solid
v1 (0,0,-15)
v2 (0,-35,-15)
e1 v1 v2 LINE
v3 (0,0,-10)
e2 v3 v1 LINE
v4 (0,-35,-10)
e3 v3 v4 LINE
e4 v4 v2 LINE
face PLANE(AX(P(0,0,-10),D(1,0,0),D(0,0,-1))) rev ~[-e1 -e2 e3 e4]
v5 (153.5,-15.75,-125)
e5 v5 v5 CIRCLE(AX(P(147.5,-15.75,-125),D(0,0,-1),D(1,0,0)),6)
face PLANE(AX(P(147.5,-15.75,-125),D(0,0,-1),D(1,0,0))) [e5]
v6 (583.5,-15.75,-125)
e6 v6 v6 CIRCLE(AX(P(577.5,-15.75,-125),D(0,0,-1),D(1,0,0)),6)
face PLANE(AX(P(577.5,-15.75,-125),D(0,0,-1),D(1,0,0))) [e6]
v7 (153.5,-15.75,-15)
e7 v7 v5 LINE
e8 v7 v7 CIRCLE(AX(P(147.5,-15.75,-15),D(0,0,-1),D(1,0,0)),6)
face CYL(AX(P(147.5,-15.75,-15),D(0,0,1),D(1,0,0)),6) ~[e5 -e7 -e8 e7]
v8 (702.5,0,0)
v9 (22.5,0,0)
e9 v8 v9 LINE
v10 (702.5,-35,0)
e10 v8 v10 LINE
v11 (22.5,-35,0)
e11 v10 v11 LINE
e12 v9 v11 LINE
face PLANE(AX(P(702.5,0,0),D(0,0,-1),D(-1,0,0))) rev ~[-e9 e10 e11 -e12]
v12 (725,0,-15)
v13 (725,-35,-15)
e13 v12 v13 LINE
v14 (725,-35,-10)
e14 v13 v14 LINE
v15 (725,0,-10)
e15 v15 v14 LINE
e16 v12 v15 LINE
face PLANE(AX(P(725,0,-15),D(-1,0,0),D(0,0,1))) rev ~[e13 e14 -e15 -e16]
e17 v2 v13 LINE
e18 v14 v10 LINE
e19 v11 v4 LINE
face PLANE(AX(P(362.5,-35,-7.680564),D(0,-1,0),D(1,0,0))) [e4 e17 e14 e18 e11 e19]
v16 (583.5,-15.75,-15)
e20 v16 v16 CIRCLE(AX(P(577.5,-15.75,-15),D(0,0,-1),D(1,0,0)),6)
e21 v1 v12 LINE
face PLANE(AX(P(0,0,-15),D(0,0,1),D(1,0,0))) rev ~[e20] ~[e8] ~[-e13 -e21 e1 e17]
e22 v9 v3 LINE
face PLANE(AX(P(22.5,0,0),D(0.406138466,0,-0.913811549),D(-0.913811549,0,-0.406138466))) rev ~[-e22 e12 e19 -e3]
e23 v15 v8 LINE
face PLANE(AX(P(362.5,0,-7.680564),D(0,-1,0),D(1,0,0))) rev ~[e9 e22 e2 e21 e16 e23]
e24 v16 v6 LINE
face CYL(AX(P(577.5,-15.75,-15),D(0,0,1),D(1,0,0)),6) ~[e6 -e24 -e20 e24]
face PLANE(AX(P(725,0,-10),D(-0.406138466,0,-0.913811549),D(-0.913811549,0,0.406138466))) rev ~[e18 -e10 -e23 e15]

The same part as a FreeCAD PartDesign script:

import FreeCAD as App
import Part
import Sketcher
from FreeCAD import Vector
Q = App.Units.Quantity


def add_polygon(sketch, points):
    """Adds a closed chain of lines whose ends are joined by coincident constraints."""
    first, n = sketch.GeometryCount, len(points)
    for a, b in zip(points, points[1:] + points[:1]):
        sketch.addGeometry(Part.LineSegment(App.Vector(*a, 0), App.Vector(*b, 0)), False)
    for i in range(n):
        sketch.addConstraint(Sketcher.Constraint("Coincident", first + i, 2, first + (i + 1) % n, 1))

doc = App.newDocument("Part")
body = doc.addObject("PartDesign::Body", "Body")

sketch1 = body.newObject("Sketcher::SketchObject", "Sketch")
sketch1.AttachmentSupport = (doc.getObject("XZ_Plane"), [""])
sketch1.MapMode = "FlatFace"
add_polygon(sketch1, [(702, 0), (22, 0), (0, -10), (0, -15), (725, -15), (725, -10)])
sketch1.addConstraint(Sketcher.Constraint("Horizontal", 0))
sketch1.addConstraint(Sketcher.Constraint("Vertical", 2))
sketch1.addConstraint(Sketcher.Constraint("Horizontal", 3))
sketch1.addConstraint(Sketcher.Constraint("Vertical", 4))
sketch1.addConstraint(Sketcher.Constraint("PointOnObject", 0, 2, -1))
sketch1.addConstraint(Sketcher.Constraint("PointOnObject", 1, 2, -2))
sketch1.addConstraint(Sketcher.Constraint("Horizontal", 1, 2, 4, 2))
sketch1.addConstraint(Sketcher.Constraint("Equal", 1, 5))
sketch1.addConstraint(Sketcher.Constraint("DistanceX", 0, 2, 0, 1, Q("680 mm")))
sketch1.addConstraint(Sketcher.Constraint("DistanceX", 3, 1, 3, 2, Q("725 mm")))
sketch1.addConstraint(Sketcher.Constraint("DistanceY", 2, 2, 2, 1, Q("5 mm")))
sketch1.addConstraint(Sketcher.Constraint("DistanceY", 1, 2, -1, 1, Q("10 mm")))
pad1 = body.newObject("PartDesign::Pad", "Pad")
pad1.Profile = sketch1
pad1.Length = 35

sketch2 = body.newObject("Sketcher::SketchObject", "Sketch001")
sketch2.AttachmentSupport = (doc.getObject("XY_Plane"), [""])
sketch2.MapMode = "FlatFace"
sketch2.AttachmentOffset = App.Placement(Vector(0, 0, -15), App.Rotation())
sketch2.addGeometry(Part.Circle(Vector(148, -16, 0), Vector(0, 0, 1), 6), False)
sketch2.addGeometry(Part.Circle(Vector(578, -16, 0), Vector(0, 0, 1), 6), False)
sketch2.addConstraint(Sketcher.Constraint("Equal", 0, 1))
sketch2.addConstraint(Sketcher.Constraint("Horizontal", 0, 3, 1, 3))
sketch2.addConstraint(Sketcher.Constraint("Diameter", 0, Q("12 mm")))
sketch2.addConstraint(Sketcher.Constraint("DistanceX", 0, 3, 1, 3, Q("430 mm")))
sketch2.addConstraint(Sketcher.Constraint("DistanceX", -1, 1, 0, 3, Q("147.5 mm")))
sketch2.addConstraint(Sketcher.Constraint("DistanceY", 0, 3, -1, 1, Q("15.75 mm")))
pad2 = body.newObject("PartDesign::Pad", "Pad001")
pad2.Profile = sketch2
pad2.Length = 110
pad2.Reversed = True

doc.recompute()
